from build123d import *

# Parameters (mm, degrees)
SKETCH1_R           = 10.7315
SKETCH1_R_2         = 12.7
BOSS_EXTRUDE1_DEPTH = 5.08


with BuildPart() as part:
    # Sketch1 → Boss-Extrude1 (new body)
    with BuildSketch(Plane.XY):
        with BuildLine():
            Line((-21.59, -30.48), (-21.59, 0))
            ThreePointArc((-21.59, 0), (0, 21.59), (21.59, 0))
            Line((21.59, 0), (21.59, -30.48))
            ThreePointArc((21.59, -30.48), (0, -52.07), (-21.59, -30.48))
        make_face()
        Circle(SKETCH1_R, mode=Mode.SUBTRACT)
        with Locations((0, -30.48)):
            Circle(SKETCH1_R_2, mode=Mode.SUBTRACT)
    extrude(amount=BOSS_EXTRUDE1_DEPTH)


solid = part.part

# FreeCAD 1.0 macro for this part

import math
import FreeCAD as App
import Part
import Sketcher

V = App.Vector
Q = App.Units.Quantity

doc = App.newDocument("Part")
body = doc.addObject("PartDesign::Body", "Body")

sketch1 = body.newObject("Sketcher::SketchObject", "Sketch")
sketch1.AttachmentSupport = (doc.getObject("XY_Plane"), [""])
sketch1.MapMode = "FlatFace"
sketch1.addGeometry(Part.LineSegment(V(-22, 0, 0), V(-22, -30, 0)), False)
sketch1.addGeometry(Part.ArcOfCircle(Part.Circle(V(0, -30, 0), V(0, 0, 1), 22), math.radians(180), math.radians(360)), False)
sketch1.addGeometry(Part.LineSegment(V(22, -30, 0), V(22, 0, 0)), False)
sketch1.addGeometry(Part.ArcOfCircle(Part.Circle(V(0, 0, 0), V(0, 0, 1), 22), math.radians(0), math.radians(180)), False)
sketch1.addGeometry(Part.Circle(V(0, -30, 0), V(0, 0, 1), 13), False)
sketch1.addGeometry(Part.Circle(V(0, 0, 0), V(0, 0, 1), 11), False)
sketch1.addConstraint(Sketcher.Constraint("Tangent", 0, 2, 1, 1))
sketch1.addConstraint(Sketcher.Constraint("Tangent", 1, 2, 2, 1))
sketch1.addConstraint(Sketcher.Constraint("Tangent", 2, 2, 3, 1))
sketch1.addConstraint(Sketcher.Constraint("Tangent", 3, 2, 0, 1))
sketch1.addConstraint(Sketcher.Constraint("Vertical", 0))
sketch1.addConstraint(Sketcher.Constraint("Vertical", 2))
sketch1.addConstraint(Sketcher.Constraint("Coincident", 3, 3, -1, 1))
sketch1.addConstraint(Sketcher.Constraint("Coincident", 5, 3, -1, 1))
sketch1.addConstraint(Sketcher.Constraint("Coincident", 4, 3, 1, 3))
sketch1.addConstraint(Sketcher.Constraint("Diameter", 4, Q("1 in")))
sketch1.addConstraint(Sketcher.Constraint("Radius", 1, Q("0.85 in")))
sketch1.addConstraint(Sketcher.Constraint("Diameter", 5, Q("0.845 in")))
sketch1.addConstraint(Sketcher.Constraint("DistanceY", 0, 2, 0, 1, Q("1.2 in")))
pad1 = body.newObject("PartDesign::Pad", "Pad")
pad1.Profile = sketch1
pad1.Length = Q("0.2 in")

doc.recompute()
